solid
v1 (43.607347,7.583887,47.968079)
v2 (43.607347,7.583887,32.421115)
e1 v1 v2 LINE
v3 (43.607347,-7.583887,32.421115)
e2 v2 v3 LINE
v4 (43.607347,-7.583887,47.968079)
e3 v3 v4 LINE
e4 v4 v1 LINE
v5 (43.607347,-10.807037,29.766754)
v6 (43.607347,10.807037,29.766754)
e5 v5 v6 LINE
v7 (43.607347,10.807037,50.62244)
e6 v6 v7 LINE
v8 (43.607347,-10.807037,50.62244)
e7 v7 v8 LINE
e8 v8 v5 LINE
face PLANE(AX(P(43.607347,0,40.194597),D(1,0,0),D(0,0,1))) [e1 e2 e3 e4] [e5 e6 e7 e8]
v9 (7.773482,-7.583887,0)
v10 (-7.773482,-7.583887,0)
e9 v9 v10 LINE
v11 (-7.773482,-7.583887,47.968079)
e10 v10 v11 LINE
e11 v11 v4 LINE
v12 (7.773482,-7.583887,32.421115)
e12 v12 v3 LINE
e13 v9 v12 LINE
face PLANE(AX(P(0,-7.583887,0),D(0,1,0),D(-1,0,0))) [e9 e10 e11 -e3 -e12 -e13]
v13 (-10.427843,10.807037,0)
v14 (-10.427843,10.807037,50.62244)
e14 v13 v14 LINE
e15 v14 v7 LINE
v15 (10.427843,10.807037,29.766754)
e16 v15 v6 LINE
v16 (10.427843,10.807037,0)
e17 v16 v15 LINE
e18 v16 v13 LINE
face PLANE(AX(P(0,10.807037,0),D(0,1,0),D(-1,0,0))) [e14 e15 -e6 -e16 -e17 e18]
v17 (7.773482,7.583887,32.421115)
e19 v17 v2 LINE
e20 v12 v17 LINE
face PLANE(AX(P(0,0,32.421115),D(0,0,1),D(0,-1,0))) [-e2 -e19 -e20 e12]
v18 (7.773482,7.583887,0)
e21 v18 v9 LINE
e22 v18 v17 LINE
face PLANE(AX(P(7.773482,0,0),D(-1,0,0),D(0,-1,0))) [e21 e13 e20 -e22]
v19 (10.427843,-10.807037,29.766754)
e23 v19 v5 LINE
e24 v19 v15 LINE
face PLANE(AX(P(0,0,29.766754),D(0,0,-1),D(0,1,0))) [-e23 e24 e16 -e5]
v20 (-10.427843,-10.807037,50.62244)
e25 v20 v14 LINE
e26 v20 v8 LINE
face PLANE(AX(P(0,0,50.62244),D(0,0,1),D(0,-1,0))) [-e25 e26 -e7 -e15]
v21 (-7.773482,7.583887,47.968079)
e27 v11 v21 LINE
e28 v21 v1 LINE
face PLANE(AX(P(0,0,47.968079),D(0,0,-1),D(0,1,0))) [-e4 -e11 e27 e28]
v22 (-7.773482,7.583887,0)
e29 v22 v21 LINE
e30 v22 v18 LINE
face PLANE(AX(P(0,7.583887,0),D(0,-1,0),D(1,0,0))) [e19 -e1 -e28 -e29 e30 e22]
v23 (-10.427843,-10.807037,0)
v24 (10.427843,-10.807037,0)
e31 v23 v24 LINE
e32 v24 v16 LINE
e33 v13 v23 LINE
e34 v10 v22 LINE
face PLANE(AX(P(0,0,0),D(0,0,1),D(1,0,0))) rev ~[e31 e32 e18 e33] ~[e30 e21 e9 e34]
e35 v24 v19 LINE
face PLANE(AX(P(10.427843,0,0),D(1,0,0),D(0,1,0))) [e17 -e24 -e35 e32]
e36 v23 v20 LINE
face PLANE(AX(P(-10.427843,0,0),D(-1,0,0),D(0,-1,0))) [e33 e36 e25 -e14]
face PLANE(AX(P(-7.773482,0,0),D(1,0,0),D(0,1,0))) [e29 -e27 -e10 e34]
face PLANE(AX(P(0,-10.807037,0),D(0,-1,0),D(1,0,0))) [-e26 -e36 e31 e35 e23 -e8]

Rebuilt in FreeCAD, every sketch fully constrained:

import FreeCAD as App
import Part
import Sketcher

doc = App.newDocument("Part")
body = doc.addObject("PartDesign::Body", "Body")

# Sketch on XY plane
sketch1 = body.newObject("Sketcher::SketchObject", "Sketch")
sketch1.AttachmentSupport = (doc.getObject("XY_Plane"), [""])
sketch1.MapMode = "FlatFace"
sketch1.addGeometry(Part.LineSegment(App.Vector(-10, 11, 0), App.Vector(-10, -11, 0)), False)
sketch1.addGeometry(Part.LineSegment(App.Vector(-10, -11, 0), App.Vector(10, -11, 0)), False)
sketch1.addGeometry(Part.LineSegment(App.Vector(10, -11, 0), App.Vector(10, 11, 0)), False)
sketch1.addGeometry(Part.LineSegment(App.Vector(10, 11, 0), App.Vector(-10, 11, 0)), False)
sketch1.addGeometry(Part.LineSegment(App.Vector(8, -8, 0), App.Vector(-8, -8, 0)), False)
sketch1.addGeometry(Part.LineSegment(App.Vector(-8, -8, 0), App.Vector(-8, 8, 0)), False)
sketch1.addGeometry(Part.LineSegment(App.Vector(-8, 8, 0), App.Vector(8, 8, 0)), False)
sketch1.addGeometry(Part.LineSegment(App.Vector(8, 8, 0), App.Vector(8, -8, 0)), False)
sketch1.addConstraint(Sketcher.Constraint("Coincident", 0, 2, 1, 1))
sketch1.addConstraint(Sketcher.Constraint("Coincident", 1, 2, 2, 1))
sketch1.addConstraint(Sketcher.Constraint("Coincident", 2, 2, 3, 1))
sketch1.addConstraint(Sketcher.Constraint("Coincident", 3, 2, 0, 1))
sketch1.addConstraint(Sketcher.Constraint("Coincident", 4, 2, 5, 1))
sketch1.addConstraint(Sketcher.Constraint("Coincident", 5, 2, 6, 1))
sketch1.addConstraint(Sketcher.Constraint("Coincident", 6, 2, 7, 1))
sketch1.addConstraint(Sketcher.Constraint("Coincident", 7, 2, 4, 1))
sketch1.addConstraint(Sketcher.Constraint("Vertical", 0))
sketch1.addConstraint(Sketcher.Constraint("Horizontal", 1))
sketch1.addConstraint(Sketcher.Constraint("Vertical", 2))
sketch1.addConstraint(Sketcher.Constraint("Horizontal", 3))
sketch1.addConstraint(Sketcher.Constraint("Horizontal", 4))
sketch1.addConstraint(Sketcher.Constraint("Vertical", 5))
sketch1.addConstraint(Sketcher.Constraint("Horizontal", 6))
sketch1.addConstraint(Sketcher.Constraint("Vertical", 7))
sketch1.addConstraint(Sketcher.Constraint("Symmetric", 0, 2, 2, 2, -1, 1))
sketch1.addConstraint(Sketcher.Constraint("Symmetric", 4, 2, 6, 2, -1, 1))
sketch1.addConstraint(Sketcher.Constraint("DistanceX", 1, 1, 1, 2, 20.855686))
sketch1.addConstraint(Sketcher.Constraint("DistanceX", 4, 2, 4, 1, 15.546964))
sketch1.addConstraint(Sketcher.Constraint("DistanceY", 0, 2, 0, 1, 21.614075))
sketch1.addConstraint(Sketcher.Constraint("DistanceY", 5, 1, 5, 2, 15.167774))

# Sketch on XZ plane
sketch2 = body.newObject("Sketcher::SketchObject", "Sketch001")
sketch2.AttachmentSupport = (doc.getObject("XZ_Plane"), [""])
sketch2.MapMode = "FlatFace"
sketch2.addGeometry(Part.LineSegment(App.Vector(0, 0, 0), App.Vector(0, 40, 0)), False)
sketch2.addGeometry(Part.LineSegment(App.Vector(0, 40, 0), App.Vector(44, 40, 0)), False)
sketch2.addConstraint(Sketcher.Constraint("Coincident", 0, 2, 1, 1))
sketch2.addConstraint(Sketcher.Constraint("Vertical", 0))
sketch2.addConstraint(Sketcher.Constraint("Horizontal", 1))
sketch2.addConstraint(Sketcher.Constraint("Coincident", 0, 1, -1, 1))
sketch2.addConstraint(Sketcher.Constraint("DistanceX", 1, 1, 1, 2, 43.607347))
sketch2.addConstraint(Sketcher.Constraint("DistanceY", 0, 1, 0, 2, 40.194597))
doc.recompute()

additivepipe = body.newObject("PartDesign::AdditivePipe", "AdditivePipe")
additivepipe.Profile = sketch1
additivepipe.Spine = (sketch2, ["Edge1", "Edge2"])
additivepipe.Transition = "Right corner"

doc.recompute()
